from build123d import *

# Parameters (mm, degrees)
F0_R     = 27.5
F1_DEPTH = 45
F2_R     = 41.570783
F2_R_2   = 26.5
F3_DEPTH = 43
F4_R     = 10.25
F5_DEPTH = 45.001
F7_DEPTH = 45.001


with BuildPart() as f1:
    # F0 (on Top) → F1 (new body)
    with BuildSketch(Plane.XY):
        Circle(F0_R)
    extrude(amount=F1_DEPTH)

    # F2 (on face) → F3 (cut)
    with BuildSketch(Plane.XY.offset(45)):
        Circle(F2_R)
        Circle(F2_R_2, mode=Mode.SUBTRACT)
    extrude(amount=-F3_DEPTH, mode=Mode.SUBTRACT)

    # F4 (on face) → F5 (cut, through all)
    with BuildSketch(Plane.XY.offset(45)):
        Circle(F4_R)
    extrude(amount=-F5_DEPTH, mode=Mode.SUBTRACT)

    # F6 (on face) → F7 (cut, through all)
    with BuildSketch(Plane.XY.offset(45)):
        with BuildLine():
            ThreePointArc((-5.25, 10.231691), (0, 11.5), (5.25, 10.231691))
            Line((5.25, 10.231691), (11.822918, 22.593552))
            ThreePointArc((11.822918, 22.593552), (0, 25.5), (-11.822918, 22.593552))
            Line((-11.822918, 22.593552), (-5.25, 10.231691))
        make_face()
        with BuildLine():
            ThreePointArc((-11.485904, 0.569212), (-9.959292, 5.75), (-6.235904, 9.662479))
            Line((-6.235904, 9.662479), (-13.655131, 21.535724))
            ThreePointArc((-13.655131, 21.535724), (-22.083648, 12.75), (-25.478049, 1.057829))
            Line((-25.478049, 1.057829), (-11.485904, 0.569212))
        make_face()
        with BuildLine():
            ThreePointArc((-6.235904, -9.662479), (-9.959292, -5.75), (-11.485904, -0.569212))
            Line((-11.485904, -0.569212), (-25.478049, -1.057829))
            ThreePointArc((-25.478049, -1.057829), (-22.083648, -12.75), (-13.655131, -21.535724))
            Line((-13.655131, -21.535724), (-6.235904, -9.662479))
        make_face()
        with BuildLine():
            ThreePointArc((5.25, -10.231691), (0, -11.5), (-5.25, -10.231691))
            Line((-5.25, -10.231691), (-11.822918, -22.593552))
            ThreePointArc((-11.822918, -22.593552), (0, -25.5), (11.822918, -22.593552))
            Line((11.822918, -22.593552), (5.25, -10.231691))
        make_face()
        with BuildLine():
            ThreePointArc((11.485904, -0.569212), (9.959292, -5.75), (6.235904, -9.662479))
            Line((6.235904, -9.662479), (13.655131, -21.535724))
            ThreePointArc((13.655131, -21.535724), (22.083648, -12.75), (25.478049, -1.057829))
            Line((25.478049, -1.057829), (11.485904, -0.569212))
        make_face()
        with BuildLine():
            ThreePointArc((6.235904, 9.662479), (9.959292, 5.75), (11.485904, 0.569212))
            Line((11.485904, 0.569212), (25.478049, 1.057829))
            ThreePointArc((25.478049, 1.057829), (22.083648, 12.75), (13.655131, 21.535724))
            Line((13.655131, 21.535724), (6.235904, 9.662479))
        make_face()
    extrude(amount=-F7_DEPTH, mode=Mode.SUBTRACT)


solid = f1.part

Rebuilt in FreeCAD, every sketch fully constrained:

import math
import FreeCAD as App
import Part
import Sketcher
from FreeCAD import Vector
Q = App.Units.Quantity

doc = App.newDocument("Part")
body = doc.addObject("PartDesign::Body", "Body")

# Sketch on XY plane
sketch1 = body.newObject("Sketcher::SketchObject", "Sketch")
sketch1.AttachmentSupport = (doc.getObject("XY_Plane"), [""])
sketch1.MapMode = "FlatFace"
sketch1.addGeometry(Part.Circle(Vector(0, 0, 0), Vector(0, 0, 1), 28), False)
sketch1.addConstraint(Sketcher.Constraint("Coincident", 0, 3, -1, 1))
sketch1.addConstraint(Sketcher.Constraint("Diameter", 0, Q("55 mm")))
pad1 = body.newObject("PartDesign::Pad", "Pad")
pad1.Profile = sketch1
pad1.Length = 45

# Sketch on XY plane
sketch2 = body.newObject("Sketcher::SketchObject", "Sketch001")
sketch2.AttachmentSupport = (doc.getObject("XY_Plane"), [""])
sketch2.MapMode = "FlatFace"
sketch2.AttachmentOffset = App.Placement(Vector(0, 0, 45), App.Rotation())
sketch2.addGeometry(Part.Circle(Vector(0, 0, 0), Vector(0, 0, 1), 42), False)
sketch2.addGeometry(Part.Circle(Vector(0, 0, 0), Vector(0, 0, 1), 26), False)
sketch2.addConstraint(Sketcher.Constraint("Coincident", 0, 3, -1, 1))
sketch2.addConstraint(Sketcher.Constraint("Coincident", 1, 3, -1, 1))
sketch2.addConstraint(Sketcher.Constraint("Diameter", 1, Q("53 mm")))
sketch2.addConstraint(Sketcher.Constraint("Diameter", 0, Q("83.141566 mm")))
pocket1 = body.newObject("PartDesign::Pocket", "Pocket")
pocket1.Profile = sketch2
pocket1.Length = 43

# Sketch on XY plane
sketch3 = body.newObject("Sketcher::SketchObject", "Sketch002")
sketch3.AttachmentSupport = (doc.getObject("XY_Plane"), [""])
sketch3.MapMode = "FlatFace"
sketch3.AttachmentOffset = App.Placement(Vector(0, 0, 45), App.Rotation())
sketch3.addGeometry(Part.Circle(Vector(0, 0, 0), Vector(0, 0, 1), 10), False)
sketch3.addConstraint(Sketcher.Constraint("Coincident", 0, 3, -1, 1))
sketch3.addConstraint(Sketcher.Constraint("Diameter", 0, Q("20.5 mm")))
pocket2 = body.newObject("PartDesign::Pocket", "Pocket001")
pocket2.Profile = sketch3
pocket2.Type = "ThroughAll"

# Sketch on XY plane
sketch4 = body.newObject("Sketcher::SketchObject", "Sketch003")
sketch4.AttachmentSupport = (doc.getObject("XY_Plane"), [""])
sketch4.MapMode = "FlatFace"
sketch4.AttachmentOffset = App.Placement(Vector(0, 0, 45), App.Rotation())
sketch4.addGeometry(Part.ArcOfCircle(Part.Circle(Vector(0, 0, 0), Vector(0, 0, 1), 12), math.radians(63), math.radians(117)), False)
sketch4.addGeometry(Part.LineSegment(Vector(5, 10, 0), Vector(12, 23, 0)), False)
sketch4.addGeometry(Part.ArcOfCircle(Part.Circle(Vector(0, 0, 0), Vector(0, 0, 1), 25), math.radians(62), math.radians(118)), False)
sketch4.addGeometry(Part.LineSegment(Vector(-12, 23, 0), Vector(-5, 10, 0)), False)
sketch4.addGeometry(Part.ArcOfCircle(Part.Circle(Vector(0, 0, 0), Vector(0, 0, 1), 11), math.radians(123), math.radians(177)), False)
sketch4.addGeometry(Part.LineSegment(Vector(-6, 10, 0), Vector(-14, 22, 0)), False)
sketch4.addGeometry(Part.ArcOfCircle(Part.Circle(Vector(0, 0, 0), Vector(0, 0, 1), 25), math.radians(122), math.radians(178)), False)
sketch4.addGeometry(Part.LineSegment(Vector(-25, 1, 0), Vector(-11, 1, 0)), False)
sketch4.addGeometry(Part.ArcOfCircle(Part.Circle(Vector(0, 0, 0), Vector(0, 0, 1), 11), math.radians(-177), math.radians(-123)), False)
sketch4.addGeometry(Part.LineSegment(Vector(-11, -1, 0), Vector(-25, -1, 0)), False)
sketch4.addGeometry(Part.ArcOfCircle(Part.Circle(Vector(0, 0, 0), Vector(0, 0, 1), 25), math.radians(-178), math.radians(-122)), False)
sketch4.addGeometry(Part.LineSegment(Vector(-14, -22, 0), Vector(-6, -10, 0)), False)
sketch4.addGeometry(Part.ArcOfCircle(Part.Circle(Vector(0, 0, 0), Vector(0, 0, 1), 12), math.radians(-117), math.radians(-63)), False)
sketch4.addGeometry(Part.LineSegment(Vector(-5, -10, 0), Vector(-12, -23, 0)), False)
sketch4.addGeometry(Part.ArcOfCircle(Part.Circle(Vector(0, 0, 0), Vector(0, 0, 1), 25), math.radians(-118), math.radians(-62)), False)
sketch4.addGeometry(Part.LineSegment(Vector(12, -23, 0), Vector(5, -10, 0)), False)
sketch4.addGeometry(Part.ArcOfCircle(Part.Circle(Vector(0, 0, 0), Vector(0, 0, 1), 11), math.radians(-57), math.radians(-3)), False)
sketch4.addGeometry(Part.LineSegment(Vector(6, -10, 0), Vector(14, -22, 0)), False)
sketch4.addGeometry(Part.ArcOfCircle(Part.Circle(Vector(0, 0, 0), Vector(0, 0, 1), 25), math.radians(-58), math.radians(-2)), False)
sketch4.addGeometry(Part.LineSegment(Vector(25, -1, 0), Vector(11, -1, 0)), False)
sketch4.addGeometry(Part.ArcOfCircle(Part.Circle(Vector(0, 0, 0), Vector(0, 0, 1), 11), math.radians(3), math.radians(57)), False)
sketch4.addGeometry(Part.LineSegment(Vector(11, 1, 0), Vector(25, 1, 0)), False)
sketch4.addGeometry(Part.ArcOfCircle(Part.Circle(Vector(0, 0, 0), Vector(0, 0, 1), 25), math.radians(2), math.radians(58)), False)
sketch4.addGeometry(Part.LineSegment(Vector(14, 22, 0), Vector(6, 10, 0)), False)
sketch4.addConstraint(Sketcher.Constraint("Coincident", 0, 1, 1, 1))
sketch4.addConstraint(Sketcher.Constraint("Coincident", 1, 2, 2, 1))
sketch4.addConstraint(Sketcher.Constraint("Coincident", 2, 2, 3, 1))
sketch4.addConstraint(Sketcher.Constraint("Coincident", 3, 2, 0, 2))
sketch4.addConstraint(Sketcher.Constraint("Coincident", 4, 1, 5, 1))
sketch4.addConstraint(Sketcher.Constraint("Coincident", 5, 2, 6, 1))
sketch4.addConstraint(Sketcher.Constraint("Coincident", 6, 2, 7, 1))
sketch4.addConstraint(Sketcher.Constraint("Coincident", 7, 2, 4, 2))
sketch4.addConstraint(Sketcher.Constraint("Coincident", 8, 1, 9, 1))
sketch4.addConstraint(Sketcher.Constraint("Coincident", 9, 2, 10, 1))
sketch4.addConstraint(Sketcher.Constraint("Coincident", 10, 2, 11, 1))
sketch4.addConstraint(Sketcher.Constraint("Coincident", 11, 2, 8, 2))
sketch4.addConstraint(Sketcher.Constraint("Coincident", 12, 1, 13, 1))
sketch4.addConstraint(Sketcher.Constraint("Coincident", 13, 2, 14, 1))
sketch4.addConstraint(Sketcher.Constraint("Coincident", 14, 2, 15, 1))
sketch4.addConstraint(Sketcher.Constraint("Coincident", 15, 2, 12, 2))
sketch4.addConstraint(Sketcher.Constraint("Coincident", 16, 1, 17, 1))
sketch4.addConstraint(Sketcher.Constraint("Coincident", 17, 2, 18, 1))
sketch4.addConstraint(Sketcher.Constraint("Coincident", 18, 2, 19, 1))
sketch4.addConstraint(Sketcher.Constraint("Coincident", 19, 2, 16, 2))
sketch4.addConstraint(Sketcher.Constraint("Coincident", 20, 1, 21, 1))
sketch4.addConstraint(Sketcher.Constraint("Coincident", 21, 2, 22, 1))
sketch4.addConstraint(Sketcher.Constraint("Coincident", 22, 2, 23, 1))
sketch4.addConstraint(Sketcher.Constraint("Coincident", 23, 2, 20, 2))
sketch4.addConstraint(Sketcher.Constraint("Coincident", 0, 3, -1, 1))
sketch4.addConstraint(Sketcher.Constraint("Coincident", 2, 3, -1, 1))
sketch4.addConstraint(Sketcher.Constraint("Coincident", 4, 3, -1, 1))
sketch4.addConstraint(Sketcher.Constraint("Coincident", 6, 3, -1, 1))
sketch4.addConstraint(Sketcher.Constraint("Coincident", 8, 3, -1, 1))
sketch4.addConstraint(Sketcher.Constraint("Coincident", 10, 3, -1, 1))
sketch4.addConstraint(Sketcher.Constraint("Coincident", 12, 3, -1, 1))
sketch4.addConstraint(Sketcher.Constraint("Coincident", 14, 3, -1, 1))
sketch4.addConstraint(Sketcher.Constraint("Coincident", 16, 3, -1, 1))
sketch4.addConstraint(Sketcher.Constraint("Coincident", 18, 3, -1, 1))
sketch4.addConstraint(Sketcher.Constraint("Coincident", 20, 3, -1, 1))
sketch4.addConstraint(Sketcher.Constraint("Coincident", 22, 3, -1, 1))
sketch4.addConstraint(Sketcher.Constraint("Equal", 0, 4))
sketch4.addConstraint(Sketcher.Constraint("Equal", 2, 6))
sketch4.addConstraint(Sketcher.Constraint("Equal", 4, 8))
sketch4.addConstraint(Sketcher.Constraint("Equal", 6, 10))
sketch4.addConstraint(Sketcher.Constraint("Equal", 8, 12))
sketch4.addConstraint(Sketcher.Constraint("Equal", 10, 14))
sketch4.addConstraint(Sketcher.Constraint("Equal", 12, 16))
sketch4.addConstraint(Sketcher.Constraint("Equal", 14, 18))
sketch4.addConstraint(Sketcher.Constraint("Equal", 16, 20))
sketch4.addConstraint(Sketcher.Constraint("Equal", 18, 22))
sketch4.addConstraint(Sketcher.Constraint("Parallel", 1, 13))
sketch4.addConstraint(Sketcher.Constraint("Parallel", 3, 15))
sketch4.addConstraint(Sketcher.Constraint("Parallel", 5, 17))
sketch4.addConstraint(Sketcher.Constraint("Parallel", 7, 19))
sketch4.addConstraint(Sketcher.Constraint("Parallel", 9, 21))
sketch4.addConstraint(Sketcher.Constraint("Parallel", 11, 23))
sketch4.addConstraint(Sketcher.Constraint("Horizontal", 1, 2, 2, 2))
sketch4.addConstraint(Sketcher.Constraint("Horizontal", 0, 1, 3, 2))
sketch4.addConstraint(Sketcher.Constraint("Horizontal", 13, 2, 14, 2))
sketch4.addConstraint(Sketcher.Constraint("Horizontal", 11, 2, 16, 1))
sketch4.addConstraint(Sketcher.Constraint("Horizontal", 10, 2, 17, 2))
sketch4.addConstraint(Sketcher.Constraint("Horizontal", 9, 2, 18, 2))
sketch4.addConstraint(Sketcher.Constraint("Horizontal", 8, 1, 19, 2))
sketch4.addConstraint(Sketcher.Constraint("Horizontal", 7, 2, 20, 1))
sketch4.addConstraint(Sketcher.Constraint("Horizontal", 5, 2, 22, 2))
sketch4.addConstraint(Sketcher.Constraint("Vertical", 7, 2, 8, 1))
sketch4.addConstraint(Sketcher.Constraint("Vertical", 5, 2, 10, 2))
sketch4.addConstraint(Sketcher.Constraint("Vertical", 3, 2, 12, 1))
sketch4.addConstraint(Sketcher.Constraint("Equal", 3, 5))
sketch4.addConstraint(Sketcher.Constraint("Equal", 5, 7))
sketch4.addConstraint(Sketcher.Constraint("Radius", 0, Q("11.5 mm")))
sketch4.addConstraint(Sketcher.Constraint("Radius", 6, Q("25.499998 mm")))
sketch4.addConstraint(Sketcher.Constraint("Angle", 1, Q("62 deg")))
sketch4.addConstraint(Sketcher.Constraint("Angle", 5, Q("122 deg")))
sketch4.addConstraint(Sketcher.Constraint("Angle", 7, Q("-2.000002 deg")))
sketch4.addConstraint(Sketcher.Constraint("DistanceX", 3, 2, 0, 1, Q("10.5 mm")))
pocket3 = body.newObject("PartDesign::Pocket", "Pocket002")
pocket3.Profile = sketch4
pocket3.Type = "ThroughAll"

doc.recompute()
